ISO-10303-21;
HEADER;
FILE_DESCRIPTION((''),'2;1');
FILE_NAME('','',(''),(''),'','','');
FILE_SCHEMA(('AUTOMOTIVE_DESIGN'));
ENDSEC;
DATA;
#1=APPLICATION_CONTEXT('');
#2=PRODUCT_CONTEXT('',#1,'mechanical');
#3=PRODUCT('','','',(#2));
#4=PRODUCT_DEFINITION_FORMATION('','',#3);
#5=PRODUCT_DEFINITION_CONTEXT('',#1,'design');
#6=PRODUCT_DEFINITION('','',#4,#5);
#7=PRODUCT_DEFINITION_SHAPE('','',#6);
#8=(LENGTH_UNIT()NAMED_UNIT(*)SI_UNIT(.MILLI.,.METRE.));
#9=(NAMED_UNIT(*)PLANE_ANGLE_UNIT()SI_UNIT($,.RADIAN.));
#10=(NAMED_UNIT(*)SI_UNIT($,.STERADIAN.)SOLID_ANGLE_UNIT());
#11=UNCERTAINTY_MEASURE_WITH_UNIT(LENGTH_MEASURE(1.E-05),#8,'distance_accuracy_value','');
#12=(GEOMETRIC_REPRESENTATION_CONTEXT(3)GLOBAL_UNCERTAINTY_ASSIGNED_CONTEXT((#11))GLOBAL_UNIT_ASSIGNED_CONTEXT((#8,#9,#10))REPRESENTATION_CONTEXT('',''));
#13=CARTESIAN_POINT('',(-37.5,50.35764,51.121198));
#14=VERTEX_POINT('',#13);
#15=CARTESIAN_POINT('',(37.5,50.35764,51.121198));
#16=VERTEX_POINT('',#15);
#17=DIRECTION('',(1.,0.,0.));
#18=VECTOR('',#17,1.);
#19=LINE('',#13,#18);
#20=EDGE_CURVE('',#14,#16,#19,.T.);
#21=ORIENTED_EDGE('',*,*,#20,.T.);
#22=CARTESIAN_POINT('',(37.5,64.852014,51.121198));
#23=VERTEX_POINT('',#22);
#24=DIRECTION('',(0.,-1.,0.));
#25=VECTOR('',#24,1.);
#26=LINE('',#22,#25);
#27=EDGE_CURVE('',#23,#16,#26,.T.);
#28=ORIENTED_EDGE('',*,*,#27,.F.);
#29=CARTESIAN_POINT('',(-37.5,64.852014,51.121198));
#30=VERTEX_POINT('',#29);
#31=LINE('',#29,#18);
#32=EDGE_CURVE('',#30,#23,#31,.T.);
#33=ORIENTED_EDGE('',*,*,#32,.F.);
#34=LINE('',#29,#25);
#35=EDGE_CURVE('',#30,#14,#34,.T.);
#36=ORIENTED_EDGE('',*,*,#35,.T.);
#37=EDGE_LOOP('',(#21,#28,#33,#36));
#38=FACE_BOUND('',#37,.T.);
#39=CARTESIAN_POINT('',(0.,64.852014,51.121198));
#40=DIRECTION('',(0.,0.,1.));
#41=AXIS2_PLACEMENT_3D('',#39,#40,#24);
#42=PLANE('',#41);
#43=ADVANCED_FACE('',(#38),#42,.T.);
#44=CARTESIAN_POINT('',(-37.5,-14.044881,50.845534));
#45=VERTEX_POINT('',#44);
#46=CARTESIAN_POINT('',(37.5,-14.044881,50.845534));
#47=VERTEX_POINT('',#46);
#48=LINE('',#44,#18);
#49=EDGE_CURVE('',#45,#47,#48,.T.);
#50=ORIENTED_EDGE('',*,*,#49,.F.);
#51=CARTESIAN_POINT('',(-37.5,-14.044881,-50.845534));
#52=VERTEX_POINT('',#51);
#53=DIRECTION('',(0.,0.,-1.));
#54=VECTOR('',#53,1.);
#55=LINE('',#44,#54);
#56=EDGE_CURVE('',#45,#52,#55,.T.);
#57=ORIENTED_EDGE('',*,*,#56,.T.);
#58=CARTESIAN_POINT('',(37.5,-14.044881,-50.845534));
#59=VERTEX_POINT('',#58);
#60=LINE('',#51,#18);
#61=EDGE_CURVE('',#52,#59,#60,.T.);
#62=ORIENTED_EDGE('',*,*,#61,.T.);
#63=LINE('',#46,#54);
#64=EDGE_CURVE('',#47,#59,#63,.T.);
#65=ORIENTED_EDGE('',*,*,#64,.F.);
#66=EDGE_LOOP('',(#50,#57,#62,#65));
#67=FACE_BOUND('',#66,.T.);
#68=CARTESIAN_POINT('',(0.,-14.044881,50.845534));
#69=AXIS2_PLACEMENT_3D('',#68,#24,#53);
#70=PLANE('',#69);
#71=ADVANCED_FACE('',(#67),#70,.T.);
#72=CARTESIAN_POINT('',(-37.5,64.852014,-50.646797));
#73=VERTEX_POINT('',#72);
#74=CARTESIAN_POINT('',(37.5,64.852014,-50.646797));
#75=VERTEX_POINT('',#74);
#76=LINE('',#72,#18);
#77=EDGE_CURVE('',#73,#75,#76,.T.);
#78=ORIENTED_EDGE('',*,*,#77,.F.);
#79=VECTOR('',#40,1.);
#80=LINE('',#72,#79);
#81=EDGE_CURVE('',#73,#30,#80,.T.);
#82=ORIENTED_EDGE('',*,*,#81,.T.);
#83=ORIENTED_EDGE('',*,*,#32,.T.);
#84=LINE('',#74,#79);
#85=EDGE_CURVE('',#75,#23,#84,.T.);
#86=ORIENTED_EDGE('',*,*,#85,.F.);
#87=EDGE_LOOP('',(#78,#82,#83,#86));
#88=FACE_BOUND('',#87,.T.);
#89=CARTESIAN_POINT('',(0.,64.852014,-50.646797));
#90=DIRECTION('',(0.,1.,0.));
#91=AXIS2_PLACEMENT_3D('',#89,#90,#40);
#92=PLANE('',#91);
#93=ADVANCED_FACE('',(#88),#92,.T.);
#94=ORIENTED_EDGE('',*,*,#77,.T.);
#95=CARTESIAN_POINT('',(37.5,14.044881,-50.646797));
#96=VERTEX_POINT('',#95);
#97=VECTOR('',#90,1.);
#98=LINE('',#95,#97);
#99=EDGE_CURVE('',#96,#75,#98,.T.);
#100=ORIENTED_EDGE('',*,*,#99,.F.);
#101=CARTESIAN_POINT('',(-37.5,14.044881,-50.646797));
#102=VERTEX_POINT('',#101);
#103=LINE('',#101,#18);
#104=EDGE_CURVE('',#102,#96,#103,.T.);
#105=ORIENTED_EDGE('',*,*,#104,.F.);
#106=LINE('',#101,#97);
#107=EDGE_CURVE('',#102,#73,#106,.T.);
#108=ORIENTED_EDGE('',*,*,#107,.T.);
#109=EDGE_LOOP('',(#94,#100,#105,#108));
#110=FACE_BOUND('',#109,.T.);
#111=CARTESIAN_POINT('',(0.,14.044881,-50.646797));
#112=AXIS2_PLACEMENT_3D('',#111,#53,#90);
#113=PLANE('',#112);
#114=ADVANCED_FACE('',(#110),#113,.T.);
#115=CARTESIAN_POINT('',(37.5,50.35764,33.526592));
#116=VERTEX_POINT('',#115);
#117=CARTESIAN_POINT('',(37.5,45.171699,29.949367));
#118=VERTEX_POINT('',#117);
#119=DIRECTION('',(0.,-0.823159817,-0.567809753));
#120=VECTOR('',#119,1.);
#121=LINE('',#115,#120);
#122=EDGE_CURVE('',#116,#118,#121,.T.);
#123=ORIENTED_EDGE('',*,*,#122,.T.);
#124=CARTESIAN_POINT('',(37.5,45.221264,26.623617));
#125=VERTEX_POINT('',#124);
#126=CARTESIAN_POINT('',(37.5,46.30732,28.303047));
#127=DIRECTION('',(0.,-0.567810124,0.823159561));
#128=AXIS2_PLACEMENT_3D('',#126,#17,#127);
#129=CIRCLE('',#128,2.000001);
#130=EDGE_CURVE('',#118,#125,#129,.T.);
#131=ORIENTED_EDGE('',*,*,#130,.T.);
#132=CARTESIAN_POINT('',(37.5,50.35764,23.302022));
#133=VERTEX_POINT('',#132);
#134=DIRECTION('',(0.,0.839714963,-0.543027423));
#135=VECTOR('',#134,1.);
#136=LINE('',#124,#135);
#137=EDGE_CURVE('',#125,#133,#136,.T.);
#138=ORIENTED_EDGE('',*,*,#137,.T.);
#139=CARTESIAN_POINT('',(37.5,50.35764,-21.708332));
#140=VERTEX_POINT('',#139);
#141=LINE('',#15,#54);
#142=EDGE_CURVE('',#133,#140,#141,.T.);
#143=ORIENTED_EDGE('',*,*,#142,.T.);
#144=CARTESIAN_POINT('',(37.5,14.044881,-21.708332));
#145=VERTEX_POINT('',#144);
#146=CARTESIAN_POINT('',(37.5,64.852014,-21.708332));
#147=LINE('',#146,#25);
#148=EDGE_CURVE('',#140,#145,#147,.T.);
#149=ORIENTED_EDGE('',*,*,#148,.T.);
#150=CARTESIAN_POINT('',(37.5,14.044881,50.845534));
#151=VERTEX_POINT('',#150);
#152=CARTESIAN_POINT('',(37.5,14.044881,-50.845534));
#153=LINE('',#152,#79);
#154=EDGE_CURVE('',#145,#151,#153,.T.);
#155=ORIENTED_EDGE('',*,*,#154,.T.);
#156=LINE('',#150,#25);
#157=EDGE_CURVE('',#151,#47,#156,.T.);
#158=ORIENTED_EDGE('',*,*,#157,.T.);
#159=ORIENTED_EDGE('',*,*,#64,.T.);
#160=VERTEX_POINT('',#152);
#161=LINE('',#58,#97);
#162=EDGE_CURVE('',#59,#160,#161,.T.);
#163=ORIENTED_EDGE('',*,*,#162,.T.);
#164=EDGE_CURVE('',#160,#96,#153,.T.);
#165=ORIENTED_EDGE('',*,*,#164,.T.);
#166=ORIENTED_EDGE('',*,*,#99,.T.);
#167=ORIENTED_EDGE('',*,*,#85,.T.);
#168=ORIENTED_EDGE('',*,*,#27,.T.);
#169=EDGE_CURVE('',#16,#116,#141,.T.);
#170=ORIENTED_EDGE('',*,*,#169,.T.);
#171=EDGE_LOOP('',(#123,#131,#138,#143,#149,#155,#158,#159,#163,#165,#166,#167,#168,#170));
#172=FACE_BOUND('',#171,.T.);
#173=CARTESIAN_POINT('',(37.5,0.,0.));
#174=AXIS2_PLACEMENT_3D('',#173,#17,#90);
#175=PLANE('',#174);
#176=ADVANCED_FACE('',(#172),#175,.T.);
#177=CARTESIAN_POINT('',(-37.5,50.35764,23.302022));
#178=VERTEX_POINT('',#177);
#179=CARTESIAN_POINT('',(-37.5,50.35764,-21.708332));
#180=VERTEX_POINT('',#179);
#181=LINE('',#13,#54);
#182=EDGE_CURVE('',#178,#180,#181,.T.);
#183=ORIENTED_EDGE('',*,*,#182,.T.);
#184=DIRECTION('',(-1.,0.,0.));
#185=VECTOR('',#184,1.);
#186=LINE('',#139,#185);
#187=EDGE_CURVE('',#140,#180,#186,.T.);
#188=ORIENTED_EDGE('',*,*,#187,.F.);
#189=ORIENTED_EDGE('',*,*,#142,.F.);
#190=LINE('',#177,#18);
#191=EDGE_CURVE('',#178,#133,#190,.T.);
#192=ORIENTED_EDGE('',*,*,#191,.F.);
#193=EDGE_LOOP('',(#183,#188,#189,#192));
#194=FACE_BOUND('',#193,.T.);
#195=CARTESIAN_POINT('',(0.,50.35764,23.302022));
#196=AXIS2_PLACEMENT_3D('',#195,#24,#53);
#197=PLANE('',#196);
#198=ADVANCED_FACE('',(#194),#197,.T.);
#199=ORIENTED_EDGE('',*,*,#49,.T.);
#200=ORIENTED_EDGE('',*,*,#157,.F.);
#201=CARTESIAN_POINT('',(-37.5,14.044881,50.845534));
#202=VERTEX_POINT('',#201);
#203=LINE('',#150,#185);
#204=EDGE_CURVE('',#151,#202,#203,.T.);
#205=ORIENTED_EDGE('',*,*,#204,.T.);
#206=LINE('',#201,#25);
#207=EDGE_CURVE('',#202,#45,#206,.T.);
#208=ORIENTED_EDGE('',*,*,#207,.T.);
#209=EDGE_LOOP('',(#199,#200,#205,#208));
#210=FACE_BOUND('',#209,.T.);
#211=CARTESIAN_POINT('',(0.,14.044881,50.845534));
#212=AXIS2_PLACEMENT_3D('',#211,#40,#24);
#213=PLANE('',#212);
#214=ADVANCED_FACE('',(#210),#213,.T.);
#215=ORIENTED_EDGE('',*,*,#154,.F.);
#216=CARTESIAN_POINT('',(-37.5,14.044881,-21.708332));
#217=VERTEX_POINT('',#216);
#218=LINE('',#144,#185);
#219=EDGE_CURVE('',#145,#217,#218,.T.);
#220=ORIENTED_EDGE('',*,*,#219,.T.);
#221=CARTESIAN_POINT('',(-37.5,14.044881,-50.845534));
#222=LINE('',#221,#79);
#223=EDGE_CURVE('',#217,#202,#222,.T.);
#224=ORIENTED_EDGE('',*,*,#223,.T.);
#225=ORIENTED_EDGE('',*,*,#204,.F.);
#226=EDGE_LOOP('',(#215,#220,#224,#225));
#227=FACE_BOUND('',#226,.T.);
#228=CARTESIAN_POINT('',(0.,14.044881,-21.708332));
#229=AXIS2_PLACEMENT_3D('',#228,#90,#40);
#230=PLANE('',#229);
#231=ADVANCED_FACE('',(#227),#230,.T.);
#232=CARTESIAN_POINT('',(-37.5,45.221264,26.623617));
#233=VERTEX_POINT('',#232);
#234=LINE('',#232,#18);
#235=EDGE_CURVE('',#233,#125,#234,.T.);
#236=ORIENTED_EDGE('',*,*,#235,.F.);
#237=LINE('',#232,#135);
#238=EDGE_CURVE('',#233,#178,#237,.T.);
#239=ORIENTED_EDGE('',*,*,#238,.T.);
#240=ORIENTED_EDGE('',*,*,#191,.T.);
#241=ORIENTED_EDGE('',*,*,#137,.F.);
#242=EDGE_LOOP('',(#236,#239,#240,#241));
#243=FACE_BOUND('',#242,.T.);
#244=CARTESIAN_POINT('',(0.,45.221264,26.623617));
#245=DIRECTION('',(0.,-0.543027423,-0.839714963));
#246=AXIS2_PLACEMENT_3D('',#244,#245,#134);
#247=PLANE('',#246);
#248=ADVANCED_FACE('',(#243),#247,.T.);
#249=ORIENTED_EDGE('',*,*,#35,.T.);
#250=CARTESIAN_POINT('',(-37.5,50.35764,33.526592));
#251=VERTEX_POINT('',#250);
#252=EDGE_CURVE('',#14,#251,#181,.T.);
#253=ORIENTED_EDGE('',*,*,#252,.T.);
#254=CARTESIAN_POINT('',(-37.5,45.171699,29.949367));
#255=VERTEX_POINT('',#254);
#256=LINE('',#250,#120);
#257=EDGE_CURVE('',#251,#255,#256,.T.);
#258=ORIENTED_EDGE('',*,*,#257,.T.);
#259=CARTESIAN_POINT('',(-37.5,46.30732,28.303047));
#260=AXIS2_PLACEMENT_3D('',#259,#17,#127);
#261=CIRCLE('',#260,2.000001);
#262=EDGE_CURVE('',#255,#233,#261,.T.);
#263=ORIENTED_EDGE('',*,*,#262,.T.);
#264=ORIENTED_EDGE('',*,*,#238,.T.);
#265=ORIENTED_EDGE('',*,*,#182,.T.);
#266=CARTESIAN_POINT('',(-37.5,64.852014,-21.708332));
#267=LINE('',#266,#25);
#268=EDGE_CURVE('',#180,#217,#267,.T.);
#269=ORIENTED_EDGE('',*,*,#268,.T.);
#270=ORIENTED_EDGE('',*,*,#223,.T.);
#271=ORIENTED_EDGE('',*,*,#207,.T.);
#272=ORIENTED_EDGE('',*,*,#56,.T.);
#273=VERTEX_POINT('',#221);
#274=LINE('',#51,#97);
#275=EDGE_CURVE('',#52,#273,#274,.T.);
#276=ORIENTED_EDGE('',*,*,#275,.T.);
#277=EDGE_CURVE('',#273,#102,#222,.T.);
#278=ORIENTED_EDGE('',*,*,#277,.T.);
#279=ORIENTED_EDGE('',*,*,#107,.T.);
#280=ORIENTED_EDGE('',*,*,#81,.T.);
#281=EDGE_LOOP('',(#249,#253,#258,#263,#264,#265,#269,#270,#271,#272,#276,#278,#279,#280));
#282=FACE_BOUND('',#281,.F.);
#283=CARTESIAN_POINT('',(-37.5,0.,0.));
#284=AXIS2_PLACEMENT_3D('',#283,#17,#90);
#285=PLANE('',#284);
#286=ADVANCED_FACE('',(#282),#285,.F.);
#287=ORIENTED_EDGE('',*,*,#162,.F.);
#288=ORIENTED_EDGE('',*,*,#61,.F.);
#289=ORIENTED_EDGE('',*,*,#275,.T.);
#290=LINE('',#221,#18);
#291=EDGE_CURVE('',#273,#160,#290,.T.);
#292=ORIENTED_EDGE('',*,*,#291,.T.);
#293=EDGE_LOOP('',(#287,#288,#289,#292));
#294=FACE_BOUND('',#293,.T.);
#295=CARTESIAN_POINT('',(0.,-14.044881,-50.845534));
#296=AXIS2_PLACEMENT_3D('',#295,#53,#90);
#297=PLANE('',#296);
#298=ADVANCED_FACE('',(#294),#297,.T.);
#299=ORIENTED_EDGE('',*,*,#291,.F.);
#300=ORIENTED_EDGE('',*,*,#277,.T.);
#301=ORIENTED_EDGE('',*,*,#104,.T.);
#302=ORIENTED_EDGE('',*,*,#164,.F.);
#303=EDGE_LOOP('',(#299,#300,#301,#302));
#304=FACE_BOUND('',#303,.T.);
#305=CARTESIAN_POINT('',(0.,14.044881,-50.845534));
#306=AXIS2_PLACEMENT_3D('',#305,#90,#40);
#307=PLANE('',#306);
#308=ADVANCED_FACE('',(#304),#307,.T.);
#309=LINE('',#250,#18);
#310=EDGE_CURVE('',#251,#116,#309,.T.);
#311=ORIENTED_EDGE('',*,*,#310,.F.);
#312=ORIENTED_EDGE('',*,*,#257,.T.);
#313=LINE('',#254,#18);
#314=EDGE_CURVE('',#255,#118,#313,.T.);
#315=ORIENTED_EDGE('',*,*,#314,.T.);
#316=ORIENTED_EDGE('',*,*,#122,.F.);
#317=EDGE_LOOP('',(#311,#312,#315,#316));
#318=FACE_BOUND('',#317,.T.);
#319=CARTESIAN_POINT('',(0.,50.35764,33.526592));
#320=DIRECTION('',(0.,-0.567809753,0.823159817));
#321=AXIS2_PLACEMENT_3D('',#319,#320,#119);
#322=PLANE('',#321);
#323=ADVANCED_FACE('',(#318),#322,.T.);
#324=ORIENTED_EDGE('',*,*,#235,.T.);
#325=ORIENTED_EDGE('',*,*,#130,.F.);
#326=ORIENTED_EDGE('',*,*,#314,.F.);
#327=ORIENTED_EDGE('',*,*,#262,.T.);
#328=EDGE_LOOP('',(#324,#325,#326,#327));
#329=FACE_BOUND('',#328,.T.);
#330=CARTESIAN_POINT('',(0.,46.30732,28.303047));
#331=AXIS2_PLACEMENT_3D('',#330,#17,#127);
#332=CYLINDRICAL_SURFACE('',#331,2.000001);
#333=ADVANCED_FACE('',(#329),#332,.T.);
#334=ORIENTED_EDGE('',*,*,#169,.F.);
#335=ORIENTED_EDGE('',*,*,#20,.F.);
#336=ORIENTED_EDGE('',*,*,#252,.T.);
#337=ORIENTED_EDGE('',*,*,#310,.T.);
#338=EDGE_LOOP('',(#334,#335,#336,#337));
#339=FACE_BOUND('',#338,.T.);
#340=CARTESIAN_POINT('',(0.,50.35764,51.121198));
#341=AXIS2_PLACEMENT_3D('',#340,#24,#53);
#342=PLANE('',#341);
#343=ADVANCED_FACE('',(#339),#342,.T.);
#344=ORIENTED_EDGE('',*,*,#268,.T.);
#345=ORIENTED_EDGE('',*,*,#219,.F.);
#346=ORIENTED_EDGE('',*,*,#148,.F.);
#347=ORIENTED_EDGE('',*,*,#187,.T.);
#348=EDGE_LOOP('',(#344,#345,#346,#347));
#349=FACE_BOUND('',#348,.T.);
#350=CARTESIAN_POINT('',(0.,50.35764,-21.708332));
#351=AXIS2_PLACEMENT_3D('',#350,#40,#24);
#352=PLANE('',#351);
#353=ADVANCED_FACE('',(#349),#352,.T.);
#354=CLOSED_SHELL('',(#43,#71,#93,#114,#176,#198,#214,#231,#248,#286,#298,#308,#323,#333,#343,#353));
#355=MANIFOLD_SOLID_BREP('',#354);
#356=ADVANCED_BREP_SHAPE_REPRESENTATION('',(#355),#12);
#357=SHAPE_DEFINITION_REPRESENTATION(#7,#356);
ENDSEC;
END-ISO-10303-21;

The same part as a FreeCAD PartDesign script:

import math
import FreeCAD as App
import Part
import Sketcher

V = App.Vector
Q = App.Units.Quantity

doc = App.newDocument("Part")
body = doc.addObject("PartDesign::Body", "Body")

sketch1 = body.newObject("Sketcher::SketchObject", "Sketch")
sketch1.AttachmentSupport = (doc.getObject("YZ_Plane"), [""])
sketch1.MapMode = "FlatFace"
sketch1.addGeometry([
    Part.LineSegment(V(14.044881, 50.845534, 0), V(-14.044881, 50.845534, 0)),
    Part.LineSegment(V(-14.044881, 50.845534, 0), V(-14.044881, -50.845534, 0)),
    Part.LineSegment(V(-14.044881, -50.845534, 0), V(14.044881, -50.845534, 0)),
    Part.LineSegment(V(14.044881, -50.845534, 0), V(14.044881, -50.646797, 0)),
    Part.LineSegment(V(14.044881, -50.646797, 0), V(64.852014, -50.646797, 0)),
    Part.LineSegment(V(64.852014, -50.646797, 0), V(64.852014, 51.121198, 0)),
    Part.LineSegment(V(64.852014, 51.121198, 0), V(50.35764, 51.121198, 0)),
    Part.LineSegment(V(50.35764, 51.121198, 0), V(50.35764, 33.526592, 0)),
    Part.LineSegment(V(50.35764, 33.526592, 0), V(45.171699, 29.949367, 0)),
    Part.ArcOfCircle(Part.Circle(V(46.30732, 28.303047, 0), V(0, 0, 1), 2.000001), math.radians(124.59766), math.radians(237.110018)),
    Part.LineSegment(V(45.221264, 26.623617, 0), V(50.35764, 23.302022, 0)),
    Part.LineSegment(V(50.35764, 23.302022, 0), V(50.35764, -21.708332, 0)),
    Part.LineSegment(V(50.35764, -21.708332, 0), V(14.044881, -21.708332, 0)),
    Part.LineSegment(V(14.044881, -21.708332, 0), V(14.044881, 50.845534, 0)),
], False)
sketch1.addConstraint([
    Sketcher.Constraint("Coincident", 0, 2, 1, 1),
    Sketcher.Constraint("Coincident", 1, 2, 2, 1),
    Sketcher.Constraint("Coincident", 2, 2, 3, 1),
    Sketcher.Constraint("Coincident", 3, 2, 4, 1),
    Sketcher.Constraint("Coincident", 4, 2, 5, 1),
    Sketcher.Constraint("Coincident", 5, 2, 6, 1),
    Sketcher.Constraint("Coincident", 6, 2, 7, 1),
    Sketcher.Constraint("Coincident", 7, 2, 8, 1),
    Sketcher.Constraint("Tangent", 8, 2, 9, 1),
    Sketcher.Constraint("Tangent", 9, 2, 10, 1),
    Sketcher.Constraint("Coincident", 10, 2, 11, 1),
    Sketcher.Constraint("Coincident", 11, 2, 12, 1),
    Sketcher.Constraint("Coincident", 12, 2, 13, 1),
    Sketcher.Constraint("Coincident", 13, 2, 0, 1),
    Sketcher.Constraint("Horizontal", 0),
    Sketcher.Constraint("Vertical", 1),
    Sketcher.Constraint("Horizontal", 2),
    Sketcher.Constraint("Vertical", 3),
    Sketcher.Constraint("Horizontal", 4),
    Sketcher.Constraint("Vertical", 5),
    Sketcher.Constraint("Horizontal", 6),
    Sketcher.Constraint("Vertical", 7),
    Sketcher.Constraint("Vertical", 11),
    Sketcher.Constraint("Horizontal", 12),
    Sketcher.Constraint("Vertical", 13),
    Sketcher.Constraint("Symmetric", 0, 2, 2, 2, -1, 1),
    Sketcher.Constraint("Vertical", 7, 2, 10, 2),
    Sketcher.Constraint("Vertical", 3, 2, 12, 2),
    Sketcher.Constraint("Radius", 9, Q("2.000001 mm")),
    Sketcher.Constraint("DistanceX", 12, 2, 12, 1, Q("36.312759 mm")),
    Sketcher.Constraint("DistanceY", 1, 2, 1, 1, Q("101.691068 mm")),
    Sketcher.Constraint("DistanceX", -1, 1, 8, 2, Q("45.171699 mm")),
    Sketcher.Constraint("DistanceX", 0, 2, 9, 3, Q("60.352201 mm")),
    Sketcher.Constraint("Distance", 8, Q("6.300041 mm")),
    Sketcher.Constraint("Distance", 10, Q("6.116809 mm")),
    Sketcher.Constraint("DistanceX", 4, 1, 4, 2, Q("50.807133 mm")),
    Sketcher.Constraint("DistanceY", 3, 1, 3, 2, Q("0.198737 mm")),
    Sketcher.Constraint("DistanceY", 5, 1, 5, 2, Q("101.767995 mm")),
    Sketcher.Constraint("DistanceY", 7, 2, 7, 1, Q("17.594606 mm")),
    Sketcher.Constraint("DistanceY", 11, 2, 11, 1, Q("45.010354 mm")),
])
pad1 = body.newObject("PartDesign::Pad", "Pad")
pad1.Profile = sketch1
pad1.Length = 75
pad1.Midplane = True

doc.recompute()
